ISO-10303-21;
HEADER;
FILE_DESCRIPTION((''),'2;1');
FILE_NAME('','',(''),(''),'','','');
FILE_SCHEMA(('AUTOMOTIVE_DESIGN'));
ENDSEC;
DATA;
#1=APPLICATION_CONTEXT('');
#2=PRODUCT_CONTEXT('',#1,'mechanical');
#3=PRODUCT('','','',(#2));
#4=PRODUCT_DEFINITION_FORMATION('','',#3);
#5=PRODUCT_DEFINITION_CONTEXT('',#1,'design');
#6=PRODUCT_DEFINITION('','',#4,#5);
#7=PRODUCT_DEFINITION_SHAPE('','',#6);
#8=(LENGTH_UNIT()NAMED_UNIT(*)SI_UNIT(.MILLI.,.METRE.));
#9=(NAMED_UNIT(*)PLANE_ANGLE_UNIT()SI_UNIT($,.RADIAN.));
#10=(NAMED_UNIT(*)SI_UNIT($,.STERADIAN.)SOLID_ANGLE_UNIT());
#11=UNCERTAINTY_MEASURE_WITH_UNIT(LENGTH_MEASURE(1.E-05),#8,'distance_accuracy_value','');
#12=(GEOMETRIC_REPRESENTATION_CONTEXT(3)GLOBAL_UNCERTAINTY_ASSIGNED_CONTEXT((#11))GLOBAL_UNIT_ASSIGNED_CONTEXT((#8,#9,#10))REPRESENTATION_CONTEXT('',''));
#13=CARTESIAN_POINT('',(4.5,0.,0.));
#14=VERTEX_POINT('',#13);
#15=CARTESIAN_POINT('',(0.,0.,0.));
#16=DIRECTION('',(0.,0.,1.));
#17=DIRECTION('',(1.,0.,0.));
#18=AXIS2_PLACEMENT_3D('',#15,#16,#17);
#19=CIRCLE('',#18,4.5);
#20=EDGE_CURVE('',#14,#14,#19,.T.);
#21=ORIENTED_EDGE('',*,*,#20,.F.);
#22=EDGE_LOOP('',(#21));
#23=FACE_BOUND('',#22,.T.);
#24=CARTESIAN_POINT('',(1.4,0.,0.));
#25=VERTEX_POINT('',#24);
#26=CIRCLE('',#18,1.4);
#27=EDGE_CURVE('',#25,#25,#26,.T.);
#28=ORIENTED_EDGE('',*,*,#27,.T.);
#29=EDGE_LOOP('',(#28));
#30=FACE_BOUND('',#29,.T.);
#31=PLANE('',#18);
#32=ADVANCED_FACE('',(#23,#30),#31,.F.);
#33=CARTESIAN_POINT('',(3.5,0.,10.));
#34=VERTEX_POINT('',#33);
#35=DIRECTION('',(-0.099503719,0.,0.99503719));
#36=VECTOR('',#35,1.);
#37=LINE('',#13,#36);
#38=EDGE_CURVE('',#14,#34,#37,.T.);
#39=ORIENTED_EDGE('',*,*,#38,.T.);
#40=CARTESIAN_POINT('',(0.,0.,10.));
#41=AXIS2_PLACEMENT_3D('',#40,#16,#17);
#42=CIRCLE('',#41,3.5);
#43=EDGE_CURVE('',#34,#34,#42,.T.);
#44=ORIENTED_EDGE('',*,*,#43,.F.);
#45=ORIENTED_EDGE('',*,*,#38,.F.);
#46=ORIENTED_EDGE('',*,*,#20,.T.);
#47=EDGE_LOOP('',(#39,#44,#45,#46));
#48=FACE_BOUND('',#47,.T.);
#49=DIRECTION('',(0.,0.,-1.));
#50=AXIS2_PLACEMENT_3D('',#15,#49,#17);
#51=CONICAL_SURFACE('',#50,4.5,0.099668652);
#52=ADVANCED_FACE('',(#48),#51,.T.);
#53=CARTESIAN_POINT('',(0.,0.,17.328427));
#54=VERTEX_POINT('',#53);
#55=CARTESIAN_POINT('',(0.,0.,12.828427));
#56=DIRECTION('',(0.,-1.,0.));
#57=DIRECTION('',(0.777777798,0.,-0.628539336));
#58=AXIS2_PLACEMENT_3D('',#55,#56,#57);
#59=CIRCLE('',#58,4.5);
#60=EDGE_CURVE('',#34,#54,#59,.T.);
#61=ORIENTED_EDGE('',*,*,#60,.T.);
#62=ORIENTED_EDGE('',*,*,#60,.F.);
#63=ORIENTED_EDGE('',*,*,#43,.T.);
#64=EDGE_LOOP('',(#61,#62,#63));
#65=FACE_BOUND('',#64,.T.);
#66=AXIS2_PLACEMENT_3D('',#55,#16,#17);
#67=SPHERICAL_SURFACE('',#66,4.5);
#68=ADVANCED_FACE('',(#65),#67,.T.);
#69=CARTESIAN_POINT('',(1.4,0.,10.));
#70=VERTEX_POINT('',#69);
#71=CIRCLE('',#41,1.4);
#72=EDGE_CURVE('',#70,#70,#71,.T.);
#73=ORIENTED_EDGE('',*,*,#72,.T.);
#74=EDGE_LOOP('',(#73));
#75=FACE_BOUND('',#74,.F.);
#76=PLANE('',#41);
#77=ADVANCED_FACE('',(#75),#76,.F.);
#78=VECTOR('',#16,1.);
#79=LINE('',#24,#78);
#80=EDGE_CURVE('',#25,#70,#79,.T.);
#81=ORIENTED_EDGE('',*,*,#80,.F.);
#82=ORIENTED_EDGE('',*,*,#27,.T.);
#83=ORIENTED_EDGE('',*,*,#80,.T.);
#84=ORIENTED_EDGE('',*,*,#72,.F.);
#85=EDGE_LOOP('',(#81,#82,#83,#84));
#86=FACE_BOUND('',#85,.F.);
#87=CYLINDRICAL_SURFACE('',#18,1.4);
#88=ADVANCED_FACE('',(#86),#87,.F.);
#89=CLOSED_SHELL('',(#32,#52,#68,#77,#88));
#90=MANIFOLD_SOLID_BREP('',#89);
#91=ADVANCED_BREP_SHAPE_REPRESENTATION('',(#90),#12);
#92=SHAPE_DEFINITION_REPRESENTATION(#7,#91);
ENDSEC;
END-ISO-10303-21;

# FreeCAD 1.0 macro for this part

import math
import FreeCAD as App
import Part
import Sketcher

V = App.Vector
Q = App.Units.Quantity

doc = App.newDocument("Part")
params = doc.addObject("Spreadsheet::Sheet", "Params")
for row, (alias, value) in enumerate([
    ("sketch1_radius", "4.5 mm"),
    ("sketch1_height", "10 mm"),
    ("sketch1_width", "3.1 mm"),
    ("sketch1_width2", "1.4 mm"),
    ("revolution_angle", "360 deg"),
], start=1):
    params.set(f"A{row}", alias)
    params.set(f"B{row}", "=" + value)
    params.setAlias(f"B{row}", alias)

body = doc.addObject("PartDesign::Body", "Body")

# Sketch on XZ plane
sketch1 = body.newObject("Sketcher::SketchObject", "Sketch")
sketch1.AttachmentSupport = (doc.getObject("XZ_Plane"), [""])
sketch1.MapMode = "FlatFace"
sketch1.addGeometry(Part.LineSegment(V(1.4, 0, 0), V(4.5, 0, 0)), False)
sketch1.addGeometry(Part.LineSegment(V(4.5, 0, 0), V(3.5, 10, 0)), False)
sketch1.addGeometry(Part.ArcOfCircle(Part.Circle(V(0, 12.8, 0), V(0, 0, 1), 4.5), math.radians(-39), math.radians(90)), False)
sketch1.addGeometry(Part.LineSegment(V(0, 17.3, 0), V(0, 10, 0)), False)
sketch1.addGeometry(Part.LineSegment(V(0, 10, 0), V(1.4, 10, 0)), False)
sketch1.addGeometry(Part.LineSegment(V(1.4, 10, 0), V(1.4, 0, 0)), False)
sketch1.addConstraint(Sketcher.Constraint("Coincident", 0, 2, 1, 1))
sketch1.addConstraint(Sketcher.Constraint("Coincident", 1, 2, 2, 1))
sketch1.addConstraint(Sketcher.Constraint("Coincident", 2, 2, 3, 1))
sketch1.addConstraint(Sketcher.Constraint("Coincident", 3, 2, 4, 1))
sketch1.addConstraint(Sketcher.Constraint("Coincident", 4, 2, 5, 1))
sketch1.addConstraint(Sketcher.Constraint("Coincident", 5, 2, 0, 1))
sketch1.addConstraint(Sketcher.Constraint("Horizontal", 0))
sketch1.addConstraint(Sketcher.Constraint("Vertical", 3))
sketch1.addConstraint(Sketcher.Constraint("Horizontal", 4))
sketch1.addConstraint(Sketcher.Constraint("Vertical", 5))
sketch1.addConstraint(Sketcher.Constraint("PointOnObject", 2, 3, -2))
sketch1.addConstraint(Sketcher.Constraint("PointOnObject", 0, 2, -1))
sketch1.addConstraint(Sketcher.Constraint("PointOnObject", 2, 2, -2))
sketch1.addConstraint(Sketcher.Constraint("Horizontal", 1, 2, 3, 2))
sketch1.addConstraint(Sketcher.Constraint("Radius", 2, Q("4.5 mm")))
sketch1.addConstraint(Sketcher.Constraint("DistanceY", 5, 2, 5, 1, Q("10 mm")))
sketch1.addConstraint(Sketcher.Constraint("DistanceX", 0, 1, 0, 2, Q("3.1 mm")))
sketch1.addConstraint(Sketcher.Constraint("DistanceX", 4, 1, 4, 2, Q("1.4 mm")))
sketch1.addConstraint(Sketcher.Constraint("DistanceX", 1, 2, 0, 2, Q("1 mm")))
sketch1.setExpression("Constraints[14]", "Params.sketch1_radius")
sketch1.setExpression("Constraints[15]", "Params.sketch1_height")
sketch1.setExpression("Constraints[16]", "Params.sketch1_width")
sketch1.setExpression("Constraints[17]", "Params.sketch1_width2")
revolution = body.newObject("PartDesign::Revolution", "Revolution")
revolution.Profile = sketch1
revolution.ReferenceAxis = (sketch1, ["V_Axis"])
revolution.setExpression("Angle", "Params.revolution_angle")

doc.recompute()
